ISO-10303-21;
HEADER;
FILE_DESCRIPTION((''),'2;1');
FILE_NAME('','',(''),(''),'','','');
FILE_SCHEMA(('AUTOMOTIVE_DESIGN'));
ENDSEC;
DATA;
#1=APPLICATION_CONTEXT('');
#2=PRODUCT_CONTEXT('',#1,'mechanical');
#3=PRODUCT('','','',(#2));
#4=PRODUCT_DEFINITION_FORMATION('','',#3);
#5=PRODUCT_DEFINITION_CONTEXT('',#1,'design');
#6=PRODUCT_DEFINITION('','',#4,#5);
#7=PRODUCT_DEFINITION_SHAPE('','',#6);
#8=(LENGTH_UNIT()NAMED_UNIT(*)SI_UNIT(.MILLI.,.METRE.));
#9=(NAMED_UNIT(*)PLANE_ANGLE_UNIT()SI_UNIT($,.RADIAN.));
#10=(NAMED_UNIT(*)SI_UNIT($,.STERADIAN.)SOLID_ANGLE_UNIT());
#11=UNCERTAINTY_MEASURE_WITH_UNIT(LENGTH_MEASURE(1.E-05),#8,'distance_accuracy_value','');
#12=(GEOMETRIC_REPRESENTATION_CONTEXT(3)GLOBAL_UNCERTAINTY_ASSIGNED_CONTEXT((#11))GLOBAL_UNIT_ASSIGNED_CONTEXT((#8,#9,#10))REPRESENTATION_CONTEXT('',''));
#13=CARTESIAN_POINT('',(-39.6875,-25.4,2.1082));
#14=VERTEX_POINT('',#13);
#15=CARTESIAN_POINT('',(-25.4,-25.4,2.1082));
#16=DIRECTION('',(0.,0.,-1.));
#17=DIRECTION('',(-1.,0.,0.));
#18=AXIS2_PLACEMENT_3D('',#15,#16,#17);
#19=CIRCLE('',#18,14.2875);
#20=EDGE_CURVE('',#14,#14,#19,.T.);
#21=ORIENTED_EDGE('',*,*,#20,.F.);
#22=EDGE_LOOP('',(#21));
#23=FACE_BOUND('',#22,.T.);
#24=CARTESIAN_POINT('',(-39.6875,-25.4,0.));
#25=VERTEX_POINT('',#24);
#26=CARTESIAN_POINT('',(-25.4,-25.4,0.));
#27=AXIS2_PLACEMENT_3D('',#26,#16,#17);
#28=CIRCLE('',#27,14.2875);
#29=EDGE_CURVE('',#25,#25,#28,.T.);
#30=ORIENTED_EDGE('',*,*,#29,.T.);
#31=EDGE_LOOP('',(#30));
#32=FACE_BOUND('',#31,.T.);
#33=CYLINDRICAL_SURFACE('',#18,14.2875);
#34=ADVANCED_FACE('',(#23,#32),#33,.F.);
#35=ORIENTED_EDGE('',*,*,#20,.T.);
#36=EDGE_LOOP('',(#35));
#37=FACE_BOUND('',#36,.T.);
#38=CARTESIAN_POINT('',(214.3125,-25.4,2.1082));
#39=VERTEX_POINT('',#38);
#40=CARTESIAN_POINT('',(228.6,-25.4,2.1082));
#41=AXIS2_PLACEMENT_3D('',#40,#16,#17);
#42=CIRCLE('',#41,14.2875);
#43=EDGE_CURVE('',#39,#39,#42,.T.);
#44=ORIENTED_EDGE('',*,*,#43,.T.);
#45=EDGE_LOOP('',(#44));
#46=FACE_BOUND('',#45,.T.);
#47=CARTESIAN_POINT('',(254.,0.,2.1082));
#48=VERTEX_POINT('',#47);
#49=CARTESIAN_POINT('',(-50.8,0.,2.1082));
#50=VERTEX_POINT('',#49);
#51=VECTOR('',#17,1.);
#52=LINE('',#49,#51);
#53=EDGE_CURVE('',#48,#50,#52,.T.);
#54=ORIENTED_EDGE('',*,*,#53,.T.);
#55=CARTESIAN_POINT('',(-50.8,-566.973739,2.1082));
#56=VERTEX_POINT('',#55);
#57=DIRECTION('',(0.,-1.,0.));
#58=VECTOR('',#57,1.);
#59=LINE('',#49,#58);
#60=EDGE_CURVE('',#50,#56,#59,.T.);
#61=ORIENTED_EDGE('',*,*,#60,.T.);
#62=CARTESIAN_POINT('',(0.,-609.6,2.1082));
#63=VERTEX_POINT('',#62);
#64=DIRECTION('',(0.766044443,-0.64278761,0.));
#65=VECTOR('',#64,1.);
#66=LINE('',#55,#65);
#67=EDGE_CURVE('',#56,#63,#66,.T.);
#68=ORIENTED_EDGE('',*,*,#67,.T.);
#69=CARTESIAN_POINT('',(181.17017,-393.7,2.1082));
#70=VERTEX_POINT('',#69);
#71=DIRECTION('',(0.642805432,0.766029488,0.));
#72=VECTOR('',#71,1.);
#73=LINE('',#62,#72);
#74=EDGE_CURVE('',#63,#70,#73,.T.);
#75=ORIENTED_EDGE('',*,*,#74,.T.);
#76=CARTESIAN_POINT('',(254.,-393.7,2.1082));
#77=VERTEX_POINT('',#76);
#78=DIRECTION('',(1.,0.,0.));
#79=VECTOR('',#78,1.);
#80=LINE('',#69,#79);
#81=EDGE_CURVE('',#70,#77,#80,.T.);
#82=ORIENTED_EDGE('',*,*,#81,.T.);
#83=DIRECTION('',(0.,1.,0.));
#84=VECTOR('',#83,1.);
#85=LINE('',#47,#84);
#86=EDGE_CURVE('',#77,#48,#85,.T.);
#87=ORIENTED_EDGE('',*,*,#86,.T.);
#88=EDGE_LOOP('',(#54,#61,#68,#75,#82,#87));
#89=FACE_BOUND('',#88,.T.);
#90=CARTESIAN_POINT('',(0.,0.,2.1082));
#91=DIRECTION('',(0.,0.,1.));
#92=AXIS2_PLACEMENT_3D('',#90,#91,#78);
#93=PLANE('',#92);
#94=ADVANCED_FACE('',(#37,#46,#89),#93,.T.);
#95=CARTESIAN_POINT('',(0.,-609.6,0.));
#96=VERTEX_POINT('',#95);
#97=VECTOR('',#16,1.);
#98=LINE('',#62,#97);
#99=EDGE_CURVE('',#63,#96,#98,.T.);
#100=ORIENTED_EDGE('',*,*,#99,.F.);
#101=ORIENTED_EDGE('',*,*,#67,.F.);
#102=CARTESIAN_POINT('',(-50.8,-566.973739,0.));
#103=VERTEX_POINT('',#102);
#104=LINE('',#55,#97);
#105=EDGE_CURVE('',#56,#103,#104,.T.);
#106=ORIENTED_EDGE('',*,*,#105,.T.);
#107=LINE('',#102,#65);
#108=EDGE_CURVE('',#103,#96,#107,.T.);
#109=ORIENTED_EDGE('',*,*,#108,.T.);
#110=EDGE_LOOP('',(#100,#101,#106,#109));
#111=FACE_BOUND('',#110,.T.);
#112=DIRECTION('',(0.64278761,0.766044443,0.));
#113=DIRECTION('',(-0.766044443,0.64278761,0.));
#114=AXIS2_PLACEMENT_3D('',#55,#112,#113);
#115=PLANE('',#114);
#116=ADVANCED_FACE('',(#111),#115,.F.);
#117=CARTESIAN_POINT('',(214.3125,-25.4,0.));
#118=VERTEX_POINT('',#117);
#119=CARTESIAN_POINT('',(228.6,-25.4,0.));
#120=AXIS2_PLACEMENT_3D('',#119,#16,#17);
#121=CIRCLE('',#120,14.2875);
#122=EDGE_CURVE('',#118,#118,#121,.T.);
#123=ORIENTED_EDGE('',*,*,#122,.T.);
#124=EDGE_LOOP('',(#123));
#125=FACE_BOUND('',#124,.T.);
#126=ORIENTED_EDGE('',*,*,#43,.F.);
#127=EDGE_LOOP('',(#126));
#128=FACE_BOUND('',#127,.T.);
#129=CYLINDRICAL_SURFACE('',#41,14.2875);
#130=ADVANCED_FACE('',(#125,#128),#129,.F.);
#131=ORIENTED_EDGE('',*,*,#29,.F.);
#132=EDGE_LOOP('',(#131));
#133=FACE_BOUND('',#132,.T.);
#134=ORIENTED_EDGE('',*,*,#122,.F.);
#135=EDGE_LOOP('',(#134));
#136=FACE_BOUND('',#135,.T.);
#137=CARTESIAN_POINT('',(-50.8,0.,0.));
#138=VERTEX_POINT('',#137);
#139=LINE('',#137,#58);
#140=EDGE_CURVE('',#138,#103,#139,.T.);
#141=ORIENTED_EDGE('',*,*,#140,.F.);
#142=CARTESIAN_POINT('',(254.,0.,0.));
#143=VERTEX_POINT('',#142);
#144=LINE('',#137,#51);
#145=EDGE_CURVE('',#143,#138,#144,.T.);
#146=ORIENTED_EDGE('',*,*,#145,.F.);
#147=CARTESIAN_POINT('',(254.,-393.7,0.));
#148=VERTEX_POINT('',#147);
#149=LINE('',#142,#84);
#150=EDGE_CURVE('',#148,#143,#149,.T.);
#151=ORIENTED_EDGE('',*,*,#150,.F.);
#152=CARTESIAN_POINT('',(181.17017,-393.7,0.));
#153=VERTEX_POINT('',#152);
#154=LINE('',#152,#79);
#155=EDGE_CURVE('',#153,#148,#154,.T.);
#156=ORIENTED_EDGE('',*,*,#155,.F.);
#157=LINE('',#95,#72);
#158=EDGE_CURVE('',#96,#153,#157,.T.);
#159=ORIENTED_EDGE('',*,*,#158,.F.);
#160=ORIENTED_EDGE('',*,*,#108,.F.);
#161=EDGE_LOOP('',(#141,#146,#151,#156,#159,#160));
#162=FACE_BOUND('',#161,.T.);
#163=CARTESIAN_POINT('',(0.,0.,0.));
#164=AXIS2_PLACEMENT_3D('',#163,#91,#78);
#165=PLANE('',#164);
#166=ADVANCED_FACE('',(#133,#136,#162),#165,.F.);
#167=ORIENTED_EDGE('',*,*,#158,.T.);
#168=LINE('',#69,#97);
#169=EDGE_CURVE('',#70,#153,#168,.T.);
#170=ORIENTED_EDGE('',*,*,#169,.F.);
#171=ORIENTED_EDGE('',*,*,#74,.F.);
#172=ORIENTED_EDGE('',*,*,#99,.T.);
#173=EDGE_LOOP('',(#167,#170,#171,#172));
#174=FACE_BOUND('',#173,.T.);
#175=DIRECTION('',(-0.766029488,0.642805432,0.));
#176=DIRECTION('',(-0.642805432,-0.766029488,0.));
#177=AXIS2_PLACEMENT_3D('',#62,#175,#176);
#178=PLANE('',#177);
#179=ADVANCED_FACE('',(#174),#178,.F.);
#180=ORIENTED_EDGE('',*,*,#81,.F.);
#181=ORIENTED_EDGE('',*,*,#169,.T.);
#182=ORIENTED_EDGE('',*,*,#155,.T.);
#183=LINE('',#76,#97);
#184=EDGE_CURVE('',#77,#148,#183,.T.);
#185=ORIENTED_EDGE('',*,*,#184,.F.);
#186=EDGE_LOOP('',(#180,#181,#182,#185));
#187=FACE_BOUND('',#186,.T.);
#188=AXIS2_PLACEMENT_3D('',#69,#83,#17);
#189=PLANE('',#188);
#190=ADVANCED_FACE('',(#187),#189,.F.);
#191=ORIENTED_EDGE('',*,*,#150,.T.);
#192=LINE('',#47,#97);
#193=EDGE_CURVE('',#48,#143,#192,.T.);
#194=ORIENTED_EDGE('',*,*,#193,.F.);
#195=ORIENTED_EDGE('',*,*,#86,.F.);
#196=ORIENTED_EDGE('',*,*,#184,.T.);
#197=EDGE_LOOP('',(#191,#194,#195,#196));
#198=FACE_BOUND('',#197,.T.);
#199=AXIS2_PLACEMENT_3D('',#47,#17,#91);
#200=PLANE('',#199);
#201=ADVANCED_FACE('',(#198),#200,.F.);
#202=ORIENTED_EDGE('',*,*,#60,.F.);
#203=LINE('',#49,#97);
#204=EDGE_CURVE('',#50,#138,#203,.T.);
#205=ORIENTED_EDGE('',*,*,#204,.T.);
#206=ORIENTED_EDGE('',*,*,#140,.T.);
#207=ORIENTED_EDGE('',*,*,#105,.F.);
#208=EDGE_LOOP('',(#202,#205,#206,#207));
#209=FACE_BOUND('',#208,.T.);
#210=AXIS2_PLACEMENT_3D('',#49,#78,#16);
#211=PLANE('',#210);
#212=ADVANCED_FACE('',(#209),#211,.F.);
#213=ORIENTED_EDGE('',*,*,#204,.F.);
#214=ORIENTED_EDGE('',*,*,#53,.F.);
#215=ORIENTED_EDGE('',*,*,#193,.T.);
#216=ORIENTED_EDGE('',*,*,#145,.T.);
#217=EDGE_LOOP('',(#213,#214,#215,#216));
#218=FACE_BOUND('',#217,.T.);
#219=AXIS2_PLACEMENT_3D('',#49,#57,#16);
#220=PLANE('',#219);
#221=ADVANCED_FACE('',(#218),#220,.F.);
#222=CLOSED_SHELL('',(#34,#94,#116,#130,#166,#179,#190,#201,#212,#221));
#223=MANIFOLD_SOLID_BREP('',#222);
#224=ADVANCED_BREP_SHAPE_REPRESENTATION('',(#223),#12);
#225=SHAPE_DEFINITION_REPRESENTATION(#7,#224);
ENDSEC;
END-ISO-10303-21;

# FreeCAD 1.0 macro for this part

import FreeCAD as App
import Part
import Sketcher
Q = App.Units.Quantity

doc = App.newDocument("Part")
params = doc.addObject("Spreadsheet::Sheet", "Params")
for row, (alias, value) in enumerate([
    ("sketch1_width", "12 in"),
    ("sketch1_height", "25 in"),
    ("pad1_length", "0.083 in"),
    ("sketch2_diameter", "1.125 in"),
    ("pocket1_length", "0.083 in"),
    ("sketch3_diameter", "1.125 in"),
    ("pocket2_length", "0.083 in"),
    ("sketch4_width", "12 in"),
    ("sketch4_height", "9.5 in"),
], start=1):
    params.set(f"A{row}", alias)
    params.set(f"B{row}", "=" + value)
    params.setAlias(f"B{row}", alias)

body = doc.addObject("PartDesign::Body", "Body")

sketch1 = body.newObject("Sketcher::SketchObject", "Sketch")
sketch1.AttachmentSupport = (doc.getObject("XY_Plane"), [""])
sketch1.MapMode = "FlatFace"
sketch1.addGeometry([
    Part.LineSegment(App.Vector(-51, 0, 0), App.Vector(-51, -635, 0)),
    Part.LineSegment(App.Vector(-51, -635, 0), App.Vector(254, -635, 0)),
    Part.LineSegment(App.Vector(254, -635, 0), App.Vector(254, 0, 0)),
    Part.LineSegment(App.Vector(254, 0, 0), App.Vector(-51, 0, 0)),
], False)
sketch1.addConstraint([
    Sketcher.Constraint("Coincident", 0, 2, 1, 1),
    Sketcher.Constraint("Coincident", 1, 2, 2, 1),
    Sketcher.Constraint("Coincident", 2, 2, 3, 1),
    Sketcher.Constraint("Coincident", 3, 2, 0, 1),
    Sketcher.Constraint("Vertical", 0),
    Sketcher.Constraint("Horizontal", 1),
    Sketcher.Constraint("Vertical", 2),
    Sketcher.Constraint("Horizontal", 3),
    Sketcher.Constraint("PointOnObject", 2, 2, -1),
    Sketcher.Constraint("DistanceX", 1, 1, 1, 2, Q("12 in")),
    Sketcher.Constraint("DistanceY", 0, 2, 0, 1, Q("25 in")),
    Sketcher.Constraint("DistanceX", 0, 2, -1, 1, Q("2 in")),
])
sketch1.setExpression("Constraints[9]", "Params.sketch1_width")
sketch1.setExpression("Constraints[10]", "Params.sketch1_height")
pad1 = body.newObject("PartDesign::Pad", "Pad")
pad1.Profile = sketch1
pad1.setExpression("Length", "Params.pad1_length")

sketch2 = body.newObject("Sketcher::SketchObject", "Sketch001")
sketch2.AttachmentSupport = (doc.getObject("XY_Plane"), [""])
sketch2.MapMode = "FlatFace"
sketch2.addGeometry(Part.Circle(App.Vector(-25, -25, 0), App.Vector(0, 0, 1), 14), False)
sketch2.addConstraint([
    Sketcher.Constraint("Diameter", 0, Q("1.125 in")),
    Sketcher.Constraint("DistanceX", 0, 3, -1, 1, Q("1 in")),
    Sketcher.Constraint("DistanceY", 0, 3, -1, 1, Q("1 in")),
])
sketch2.setExpression("Constraints[0]", "Params.sketch2_diameter")
pocket1 = body.newObject("PartDesign::Pocket", "Pocket")
pocket1.Profile = sketch2
pocket1.setExpression("Length", "Params.pocket1_length")
pocket1.Reversed = True

sketch3 = body.newObject("Sketcher::SketchObject", "Sketch002")
sketch3.AttachmentSupport = (doc.getObject("XY_Plane"), [""])
sketch3.MapMode = "FlatFace"
sketch3.addGeometry(Part.Circle(App.Vector(229, -25, 0), App.Vector(0, 0, 1), 14), False)
sketch3.addConstraint([
    Sketcher.Constraint("Diameter", 0, Q("1.125 in")),
    Sketcher.Constraint("DistanceX", -1, 1, 0, 3, Q("9 in")),
    Sketcher.Constraint("DistanceY", 0, 3, -1, 1, Q("1 in")),
])
sketch3.setExpression("Constraints[0]", "Params.sketch3_diameter")
pocket2 = body.newObject("PartDesign::Pocket", "Pocket001")
pocket2.Profile = sketch3
pocket2.setExpression("Length", "Params.pocket2_length")
pocket2.Reversed = True

sketch4 = body.newObject("Sketcher::SketchObject", "Sketch003")
sketch4.AttachmentSupport = (doc.getObject("XY_Plane"), [""])
sketch4.MapMode = "FlatFace"
sketch4.addGeometry([
    Part.LineSegment(App.Vector(254, -394, 0), App.Vector(254, -635, 0)),
    Part.LineSegment(App.Vector(254, -635, 0), App.Vector(-51, -635, 0)),
    Part.LineSegment(App.Vector(-51, -635, 0), App.Vector(-51, -567, 0)),
    Part.LineSegment(App.Vector(-51, -567, 0), App.Vector(0, -610, 0)),
    Part.LineSegment(App.Vector(0, -610, 0), App.Vector(181, -394, 0)),
    Part.LineSegment(App.Vector(181, -394, 0), App.Vector(254, -394, 0)),
], False)
sketch4.addConstraint([
    Sketcher.Constraint("Coincident", 0, 2, 1, 1),
    Sketcher.Constraint("Coincident", 1, 2, 2, 1),
    Sketcher.Constraint("Coincident", 2, 2, 3, 1),
    Sketcher.Constraint("Coincident", 3, 2, 4, 1),
    Sketcher.Constraint("Coincident", 4, 2, 5, 1),
    Sketcher.Constraint("Coincident", 5, 2, 0, 1),
    Sketcher.Constraint("Vertical", 0),
    Sketcher.Constraint("Horizontal", 1),
    Sketcher.Constraint("Vertical", 2),
    Sketcher.Constraint("Horizontal", 5),
    Sketcher.Constraint("PointOnObject", 3, 2, -2),
    Sketcher.Constraint("DistanceX", 1, 2, 1, 1, Q("12 in")),
    Sketcher.Constraint("DistanceY", 0, 2, 0, 1, Q("9.5 in")),
    Sketcher.Constraint("DistanceX", -1, 1, 0, 2, Q("10 in")),
    Sketcher.Constraint("DistanceY", 0, 2, -1, 1, Q("25 in")),
    Sketcher.Constraint("DistanceY", 3, 2, -1, 1, Q("24 in")),
    Sketcher.Constraint("Angle", 3, Q("-40 deg")),
    Sketcher.Constraint("DistanceX", 5, 1, 5, 2, Q("72.82983 mm")),
])
sketch4.setExpression("Constraints[11]", "Params.sketch4_width")
sketch4.setExpression("Constraints[12]", "Params.sketch4_height")
pocket3 = body.newObject("PartDesign::Pocket", "Pocket002")
pocket3.Profile = sketch4
pocket3.Type = "ThroughAll"
pocket3.Reversed = True

doc.recompute()
